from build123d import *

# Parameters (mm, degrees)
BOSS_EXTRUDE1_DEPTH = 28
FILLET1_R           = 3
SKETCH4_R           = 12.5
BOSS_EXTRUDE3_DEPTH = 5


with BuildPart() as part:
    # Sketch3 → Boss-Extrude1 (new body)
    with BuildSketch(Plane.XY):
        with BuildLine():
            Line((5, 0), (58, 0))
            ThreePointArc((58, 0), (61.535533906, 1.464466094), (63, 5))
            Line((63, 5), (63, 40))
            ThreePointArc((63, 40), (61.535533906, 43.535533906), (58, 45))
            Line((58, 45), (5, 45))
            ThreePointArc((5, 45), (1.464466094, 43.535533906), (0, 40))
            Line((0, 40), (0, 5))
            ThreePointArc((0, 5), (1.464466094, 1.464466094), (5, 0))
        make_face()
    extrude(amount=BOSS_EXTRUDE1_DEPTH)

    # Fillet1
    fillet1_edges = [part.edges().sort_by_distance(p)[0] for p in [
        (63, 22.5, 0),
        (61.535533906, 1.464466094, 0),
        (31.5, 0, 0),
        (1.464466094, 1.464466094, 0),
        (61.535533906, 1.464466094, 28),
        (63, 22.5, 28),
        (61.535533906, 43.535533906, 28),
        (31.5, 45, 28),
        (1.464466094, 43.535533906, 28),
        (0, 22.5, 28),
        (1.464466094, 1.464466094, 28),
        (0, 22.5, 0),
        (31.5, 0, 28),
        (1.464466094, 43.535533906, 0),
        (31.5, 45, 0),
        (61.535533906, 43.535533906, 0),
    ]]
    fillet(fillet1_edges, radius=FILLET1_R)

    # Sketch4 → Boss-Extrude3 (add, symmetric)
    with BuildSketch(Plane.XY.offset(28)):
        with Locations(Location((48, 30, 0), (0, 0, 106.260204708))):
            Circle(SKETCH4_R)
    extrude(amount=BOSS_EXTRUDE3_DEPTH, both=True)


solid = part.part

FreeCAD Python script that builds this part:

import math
import FreeCAD as App
import Part
import Sketcher


def edges_at(feature, points):
    """Names of the edges that pass closest to the given points."""
    edges = feature.Shape.Edges
    near = lambda p: min(range(len(edges)), key=lambda i: edges[i].distToShape(Part.Vertex(*p))[0])
    return sorted({f"Edge{near(p) + 1}" for p in points})

doc = App.newDocument("Part")
body = doc.addObject("PartDesign::Body", "Body")

# Sketch on XY plane
sketch1 = body.newObject("Sketcher::SketchObject", "Sketch")
sketch1.AttachmentSupport = (doc.getObject("XY_Plane"), [""])
sketch1.MapMode = "FlatFace"
sketch1.addGeometry(Part.LineSegment(App.Vector(5, 0, 0), App.Vector(58, 0, 0)), False)
sketch1.addGeometry(Part.ArcOfCircle(Part.Circle(App.Vector(58, 5, 0), App.Vector(0, 0, 1), 5), math.radians(-90), math.radians(0)), False)
sketch1.addGeometry(Part.LineSegment(App.Vector(63, 5, 0), App.Vector(63, 40, 0)), False)
sketch1.addGeometry(Part.ArcOfCircle(Part.Circle(App.Vector(58, 40, 0), App.Vector(0, 0, 1), 5), math.radians(0), math.radians(90)), False)
sketch1.addGeometry(Part.LineSegment(App.Vector(58, 45, 0), App.Vector(5, 45, 0)), False)
sketch1.addGeometry(Part.ArcOfCircle(Part.Circle(App.Vector(5, 40, 0), App.Vector(0, 0, 1), 5), math.radians(90), math.radians(180)), False)
sketch1.addGeometry(Part.LineSegment(App.Vector(0, 40, 0), App.Vector(0, 5, 0)), False)
sketch1.addGeometry(Part.ArcOfCircle(Part.Circle(App.Vector(5, 5, 0), App.Vector(0, 0, 1), 5), math.radians(180), math.radians(270)), False)
sketch1.addConstraint(Sketcher.Constraint("Tangent", 0, 2, 1, 1))
sketch1.addConstraint(Sketcher.Constraint("Tangent", 1, 2, 2, 1))
sketch1.addConstraint(Sketcher.Constraint("Tangent", 2, 2, 3, 1))
sketch1.addConstraint(Sketcher.Constraint("Tangent", 3, 2, 4, 1))
sketch1.addConstraint(Sketcher.Constraint("Tangent", 4, 2, 5, 1))
sketch1.addConstraint(Sketcher.Constraint("Tangent", 5, 2, 6, 1))
sketch1.addConstraint(Sketcher.Constraint("Tangent", 6, 2, 7, 1))
sketch1.addConstraint(Sketcher.Constraint("Tangent", 7, 2, 0, 1))
sketch1.addConstraint(Sketcher.Constraint("Horizontal", 0))
sketch1.addConstraint(Sketcher.Constraint("Vertical", 2))
sketch1.addConstraint(Sketcher.Constraint("Horizontal", 4))
sketch1.addConstraint(Sketcher.Constraint("Vertical", 6))
sketch1.addConstraint(Sketcher.Constraint("Equal", 1, 3))
sketch1.addConstraint(Sketcher.Constraint("Equal", 3, 5))
sketch1.addConstraint(Sketcher.Constraint("Equal", 5, 7))
sketch1.addConstraint(Sketcher.Constraint("PointOnObject", 0, 2, -1))
sketch1.addConstraint(Sketcher.Constraint("PointOnObject", 5, 2, -2))
sketch1.addConstraint(Sketcher.Constraint("Radius", 1, 5.0))
sketch1.addConstraint(Sketcher.Constraint("DistanceX", 0, 1, 0, 2, 53.0))
sketch1.addConstraint(Sketcher.Constraint("DistanceY", 2, 1, 2, 2, 35.0))
pad1 = body.newObject("PartDesign::Pad", "Pad")
pad1.Profile = sketch1
pad1.Length = 28
doc.recompute()

fillet = body.newObject("PartDesign::Fillet", "Fillet")
fillet.Base = (pad1, edges_at(pad1, [
    (63, 22.5, 0),
    (61.536, 1.464, 0),
    (31.5, 0, 0),
    (1.464, 1.464, 0),
    (61.536, 1.464, 28),
    (63, 22.5, 28),
    (61.536, 43.536, 28),
    (31.5, 45, 28),
    (1.464, 43.536, 28),
    (0, 22.5, 28),
    (1.464, 1.464, 28),
    (0, 22.5, 0),
    (31.5, 0, 28),
    (1.464, 43.536, 0),
    (31.5, 45, 0),
    (61.536, 43.536, 0),
]))
fillet.Radius = 3

# Sketch on XY plane
sketch2 = body.newObject("Sketcher::SketchObject", "Sketch001")
sketch2.AttachmentSupport = (doc.getObject("XY_Plane"), [""])
sketch2.MapMode = "FlatFace"
sketch2.AttachmentOffset = App.Placement(App.Vector(0, 0, 28), App.Rotation())
sketch2.addGeometry(Part.Circle(App.Vector(48, 30, 0), App.Vector(0, 0, 1), 12.5), False)
sketch2.addConstraint(Sketcher.Constraint("Diameter", 0, 25.0))
sketch2.addConstraint(Sketcher.Constraint("DistanceX", -1, 1, 0, 3, 48.0))
sketch2.addConstraint(Sketcher.Constraint("DistanceY", -1, 1, 0, 3, 30.0))
pad2 = body.newObject("PartDesign::Pad", "Pad001")
pad2.Profile = sketch2
pad2.Length = 10
pad2.Midplane = True

doc.recompute()
